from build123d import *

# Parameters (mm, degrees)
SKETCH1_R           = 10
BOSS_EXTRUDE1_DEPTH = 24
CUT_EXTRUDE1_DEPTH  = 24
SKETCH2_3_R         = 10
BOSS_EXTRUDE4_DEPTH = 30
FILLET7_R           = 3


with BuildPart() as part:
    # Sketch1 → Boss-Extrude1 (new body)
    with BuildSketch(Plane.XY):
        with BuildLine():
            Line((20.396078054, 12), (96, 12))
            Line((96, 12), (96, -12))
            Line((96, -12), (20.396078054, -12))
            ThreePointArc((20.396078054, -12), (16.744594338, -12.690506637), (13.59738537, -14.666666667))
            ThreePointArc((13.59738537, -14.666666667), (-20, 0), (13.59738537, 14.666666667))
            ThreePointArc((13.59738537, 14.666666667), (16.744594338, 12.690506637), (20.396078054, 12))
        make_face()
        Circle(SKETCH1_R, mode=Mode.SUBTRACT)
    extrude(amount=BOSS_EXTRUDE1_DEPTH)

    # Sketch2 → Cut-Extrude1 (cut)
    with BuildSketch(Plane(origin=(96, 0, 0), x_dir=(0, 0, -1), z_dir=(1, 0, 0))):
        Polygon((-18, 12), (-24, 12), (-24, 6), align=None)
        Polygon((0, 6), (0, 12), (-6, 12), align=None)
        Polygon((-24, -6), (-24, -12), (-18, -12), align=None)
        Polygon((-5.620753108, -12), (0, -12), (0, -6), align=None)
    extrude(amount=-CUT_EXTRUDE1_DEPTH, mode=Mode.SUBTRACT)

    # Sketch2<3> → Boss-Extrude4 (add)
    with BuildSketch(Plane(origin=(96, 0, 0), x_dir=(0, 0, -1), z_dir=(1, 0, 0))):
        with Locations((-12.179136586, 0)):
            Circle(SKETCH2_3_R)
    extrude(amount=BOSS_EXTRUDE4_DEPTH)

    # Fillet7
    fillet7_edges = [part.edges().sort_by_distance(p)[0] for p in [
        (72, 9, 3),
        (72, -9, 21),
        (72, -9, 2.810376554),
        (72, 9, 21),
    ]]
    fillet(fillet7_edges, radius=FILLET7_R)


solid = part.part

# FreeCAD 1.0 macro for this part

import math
import FreeCAD as App
import Part
import Sketcher

V = App.Vector
Q = App.Units.Quantity


def edges_at(feature, points):
    """Names of the edges that pass closest to the given points."""
    edges = feature.Shape.Edges
    near = lambda p: min(range(len(edges)), key=lambda i: edges[i].distToShape(Part.Vertex(*p))[0])
    return sorted({f"Edge{near(p) + 1}" for p in points})

doc = App.newDocument("Part")
body = doc.addObject("PartDesign::Body", "Body")

# Sketch on XY plane
sketch1 = doc.addObject("Sketcher::SketchObject", "Sketch")
body.addObject(sketch1)
sketch1.AttachmentSupport = (doc.XY_Plane, [""])
sketch1.MapMode = "FlatFace"
sketch1.addGeometry([
    Part.LineSegment(V(96, 12, 0), V(20, 12, 0)),  # 0
    Part.ArcOfCircle(Part.Circle(V(20, 22, 0), V(0, 0, 1), 10), math.radians(-133), math.radians(-90)),  # 1
    Part.ArcOfCircle(Part.Circle(V(0, 0, 0), V(0, 0, 1), 20), math.radians(47), math.radians(313)),  # 2
    Part.ArcOfCircle(Part.Circle(V(20, -22, 0), V(0, 0, 1), 10), math.radians(90), math.radians(133)),  # 3
    Part.LineSegment(V(20, -12, 0), V(96, -12, 0)),  # 4
    Part.LineSegment(V(96, -12, 0), V(96, 12, 0)),  # 5
    Part.Circle(V(0, 0, 0), V(0, 0, 1), 10),  # 6
], False)
sketch1.addConstraint([
    Sketcher.Constraint("Tangent", 0, 2, 1, 2),
    Sketcher.Constraint("Tangent", 1, 1, 2, 1),
    Sketcher.Constraint("Tangent", 2, 2, 3, 2),
    Sketcher.Constraint("Tangent", 3, 1, 4, 1),
    Sketcher.Constraint("Coincident", 4, 2, 5, 1),
    Sketcher.Constraint("Coincident", 5, 2, 0, 1),
    Sketcher.Constraint("Horizontal", 0),
    Sketcher.Constraint("Horizontal", 4),
    Sketcher.Constraint("Vertical", 5),
    Sketcher.Constraint("Coincident", 2, 3, -1, 1),
    Sketcher.Constraint("Coincident", 6, 3, -1, 1),
    Sketcher.Constraint("Equal", 1, 3),
    Sketcher.Constraint("Equal", 3, 6),
    Sketcher.Constraint("Vertical", 1, 3, 3, 3),
    Sketcher.Constraint("Diameter", 6, Q("20 mm")),
    Sketcher.Constraint("Radius", 2, Q("20 mm")),
    Sketcher.Constraint("DistanceY", 5, 1, 5, 2, Q("24 mm")),
    Sketcher.Constraint("DistanceX", -1, 1, 4, 2, Q("96 mm")),
])
pad1 = doc.addObject("PartDesign::Pad", "Pad")
body.addObject(pad1)
pad1.Profile = sketch1
pad1.Length = 24

# Sketch on YZ plane
sketch2 = doc.addObject("Sketcher::SketchObject", "Sketch001")
body.addObject(sketch2)
sketch2.AttachmentSupport = (doc.YZ_Plane, [""])
sketch2.MapMode = "FlatFace"
sketch2.AttachmentOffset = App.Placement(V(0, 0, 96), App.Rotation())
sketch2.addGeometry([
    Part.LineSegment(V(12, 18, 0), V(12, 24, 0)),  # 0
    Part.LineSegment(V(12, 24, 0), V(6, 24, 0)),  # 1
    Part.LineSegment(V(6, 24, 0), V(12, 18, 0)),  # 2
    Part.LineSegment(V(6, 0, 0), V(12, 0, 0)),  # 3
    Part.LineSegment(V(12, 0, 0), V(12, 6, 0)),  # 4
    Part.LineSegment(V(12, 6, 0), V(6, 0, 0)),  # 5
    Part.LineSegment(V(-6, 24, 0), V(-12, 24, 0)),  # 6
    Part.LineSegment(V(-12, 24, 0), V(-12, 18, 0)),  # 7
    Part.LineSegment(V(-12, 18, 0), V(-6, 24, 0)),  # 8
    Part.LineSegment(V(-12, 6, 0), V(-12, 0, 0)),  # 9
    Part.LineSegment(V(-12, 0, 0), V(-6, 0, 0)),  # 10
    Part.LineSegment(V(-6, 0, 0), V(-12, 6, 0)),  # 11
], False)
sketch2.addConstraint([
    Sketcher.Constraint("Coincident", 0, 2, 1, 1),
    Sketcher.Constraint("Coincident", 1, 2, 2, 1),
    Sketcher.Constraint("Coincident", 2, 2, 0, 1),
    Sketcher.Constraint("Coincident", 3, 2, 4, 1),
    Sketcher.Constraint("Coincident", 4, 2, 5, 1),
    Sketcher.Constraint("Coincident", 5, 2, 3, 1),
    Sketcher.Constraint("Coincident", 6, 2, 7, 1),
    Sketcher.Constraint("Coincident", 7, 2, 8, 1),
    Sketcher.Constraint("Coincident", 8, 2, 6, 1),
    Sketcher.Constraint("Coincident", 9, 2, 10, 1),
    Sketcher.Constraint("Coincident", 10, 2, 11, 1),
    Sketcher.Constraint("Coincident", 11, 2, 9, 1),
    Sketcher.Constraint("Vertical", 0),
    Sketcher.Constraint("Horizontal", 1),
    Sketcher.Constraint("Horizontal", 3),
    Sketcher.Constraint("Vertical", 4),
    Sketcher.Constraint("Horizontal", 6),
    Sketcher.Constraint("Vertical", 7),
    Sketcher.Constraint("Vertical", 9),
    Sketcher.Constraint("Horizontal", 10),
    Sketcher.Constraint("Symmetric", 3, 2, 9, 2, -1, 1),
    Sketcher.Constraint("Symmetric", 0, 2, 6, 2, -2),
    Sketcher.Constraint("Symmetric", 5, 2, 10, 2, -2),
    Sketcher.Constraint("Perpendicular", 2, 5),
    Sketcher.Constraint("Parallel", 5, 8),
    Sketcher.Constraint("Horizontal", 2, 2, 7, 2),
    Sketcher.Constraint("Vertical", 2, 2, 3, 2),
    Sketcher.Constraint("Vertical", 1, 2, 5, 2),
    Sketcher.Constraint("Vertical", 8, 2, 10, 2),
    Sketcher.Constraint("DistanceX", 1, 2, 1, 1, Q("6 mm")),
    Sketcher.Constraint("DistanceX", -1, 1, 0, 2, Q("12 mm")),
    Sketcher.Constraint("DistanceY", -1, 1, 0, 2, Q("24 mm")),
    Sketcher.Constraint("Distance", 11, Q("8.221488 mm")),
])
pocket1 = doc.addObject("PartDesign::Pocket", "Pocket")
body.addObject(pocket1)
pocket1.Profile = sketch2
pocket1.Length = 24

# Sketch on YZ plane
sketch3 = doc.addObject("Sketcher::SketchObject", "Sketch002")
body.addObject(sketch3)
sketch3.AttachmentSupport = (doc.YZ_Plane, [""])
sketch3.MapMode = "FlatFace"
sketch3.AttachmentOffset = App.Placement(V(0, 0, 96), App.Rotation())
sketch3.addGeometry(Part.Circle(V(0, 12, 0), V(0, 0, 1), 10), False)
sketch3.addConstraint([
    Sketcher.Constraint("PointOnObject", 0, 3, -2),
    Sketcher.Constraint("Diameter", 0, Q("20 mm")),
    Sketcher.Constraint("DistanceY", -1, 1, 0, 3, Q("12.179137 mm")),
])
pad2 = doc.addObject("PartDesign::Pad", "Pad001")
body.addObject(pad2)
pad2.Profile = sketch3
pad2.Length = 30
doc.recompute()

fillet = doc.addObject("PartDesign::Fillet", "Fillet")
body.addObject(fillet)
fillet.Base = (pad2, edges_at(pad2, [
    (72, 9, 3),
    (72, -9, 21),
    (72, -9, 2.81),
    (72, 9, 21),
]))
fillet.Radius = 3

doc.recompute()
